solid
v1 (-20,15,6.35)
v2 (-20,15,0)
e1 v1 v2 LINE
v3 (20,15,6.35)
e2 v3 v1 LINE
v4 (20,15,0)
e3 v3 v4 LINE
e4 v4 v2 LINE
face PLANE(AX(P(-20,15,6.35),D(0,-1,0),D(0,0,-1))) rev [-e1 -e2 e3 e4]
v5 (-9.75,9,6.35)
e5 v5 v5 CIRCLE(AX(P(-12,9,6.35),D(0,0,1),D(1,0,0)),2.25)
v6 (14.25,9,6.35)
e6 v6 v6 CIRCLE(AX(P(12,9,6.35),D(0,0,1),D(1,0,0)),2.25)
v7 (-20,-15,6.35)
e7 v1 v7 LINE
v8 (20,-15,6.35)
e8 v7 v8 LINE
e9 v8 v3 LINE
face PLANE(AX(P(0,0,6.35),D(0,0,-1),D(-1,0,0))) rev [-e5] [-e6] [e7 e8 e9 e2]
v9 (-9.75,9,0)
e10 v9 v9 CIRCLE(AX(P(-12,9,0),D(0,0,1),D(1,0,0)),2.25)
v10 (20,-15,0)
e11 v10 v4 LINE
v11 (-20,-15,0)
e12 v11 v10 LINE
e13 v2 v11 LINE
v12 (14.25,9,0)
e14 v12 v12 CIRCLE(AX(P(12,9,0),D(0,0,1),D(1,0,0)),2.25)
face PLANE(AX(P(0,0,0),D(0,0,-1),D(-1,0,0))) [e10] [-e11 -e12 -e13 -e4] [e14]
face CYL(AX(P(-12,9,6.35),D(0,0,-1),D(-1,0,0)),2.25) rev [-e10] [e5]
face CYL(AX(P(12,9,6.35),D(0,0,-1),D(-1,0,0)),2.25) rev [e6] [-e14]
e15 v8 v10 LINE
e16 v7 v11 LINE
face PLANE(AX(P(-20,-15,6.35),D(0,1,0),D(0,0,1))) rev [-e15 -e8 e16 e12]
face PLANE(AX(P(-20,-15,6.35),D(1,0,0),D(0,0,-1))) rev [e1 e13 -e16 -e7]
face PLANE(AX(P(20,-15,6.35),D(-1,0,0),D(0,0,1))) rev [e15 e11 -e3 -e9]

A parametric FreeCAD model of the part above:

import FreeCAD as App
import Part
import Sketcher
Q = App.Units.Quantity


def add_polygon(sketch, points):
    """Adds a closed chain of lines whose ends are joined by coincident constraints."""
    first, n = sketch.GeometryCount, len(points)
    for a, b in zip(points, points[1:] + points[:1]):
        sketch.addGeometry(Part.LineSegment(App.Vector(*a, 0), App.Vector(*b, 0)), False)
    for i in range(n):
        sketch.addConstraint(Sketcher.Constraint("Coincident", first + i, 2, first + (i + 1) % n, 1))

doc = App.newDocument("Part")
body = doc.addObject("PartDesign::Body", "Body")

sketch1 = body.newObject("Sketcher::SketchObject", "Sketch")
sketch1.AttachmentSupport = (doc.getObject("XY_Plane"), [""])
sketch1.MapMode = "FlatFace"
add_polygon(sketch1, [(-20, 15), (-20, -15), (20, -15), (20, 15)])
sketch1.addGeometry(Part.Circle(App.Vector(-12, 9, 0), App.Vector(0, 0, 1), 2.2), False)
sketch1.addGeometry(Part.Circle(App.Vector(12, 9, 0), App.Vector(0, 0, 1), 2.2), False)
sketch1.addConstraint(Sketcher.Constraint("Vertical", 0))
sketch1.addConstraint(Sketcher.Constraint("Horizontal", 1))
sketch1.addConstraint(Sketcher.Constraint("Vertical", 2))
sketch1.addConstraint(Sketcher.Constraint("Horizontal", 3))
sketch1.addConstraint(Sketcher.Constraint("Equal", 4, 5))
sketch1.addConstraint(Sketcher.Constraint("Symmetric", 0, 2, 2, 2, -1, 1))
sketch1.addConstraint(Sketcher.Constraint("Symmetric", 4, 3, 5, 3, -2))
sketch1.addConstraint(Sketcher.Constraint("Diameter", 4, Q("4.5 mm")))
sketch1.addConstraint(Sketcher.Constraint("DistanceX", 1, 1, 1, 2, Q("40 mm")))
sketch1.addConstraint(Sketcher.Constraint("DistanceY", 0, 2, 0, 1, Q("30 mm")))
sketch1.addConstraint(Sketcher.Constraint("DistanceX", 4, 3, -1, 1, Q("12 mm")))
sketch1.addConstraint(Sketcher.Constraint("DistanceY", -1, 1, 4, 3, Q("9 mm")))
pad1 = body.newObject("PartDesign::Pad", "Pad")
pad1.Profile = sketch1
pad1.Length = 6.35

doc.recompute()
